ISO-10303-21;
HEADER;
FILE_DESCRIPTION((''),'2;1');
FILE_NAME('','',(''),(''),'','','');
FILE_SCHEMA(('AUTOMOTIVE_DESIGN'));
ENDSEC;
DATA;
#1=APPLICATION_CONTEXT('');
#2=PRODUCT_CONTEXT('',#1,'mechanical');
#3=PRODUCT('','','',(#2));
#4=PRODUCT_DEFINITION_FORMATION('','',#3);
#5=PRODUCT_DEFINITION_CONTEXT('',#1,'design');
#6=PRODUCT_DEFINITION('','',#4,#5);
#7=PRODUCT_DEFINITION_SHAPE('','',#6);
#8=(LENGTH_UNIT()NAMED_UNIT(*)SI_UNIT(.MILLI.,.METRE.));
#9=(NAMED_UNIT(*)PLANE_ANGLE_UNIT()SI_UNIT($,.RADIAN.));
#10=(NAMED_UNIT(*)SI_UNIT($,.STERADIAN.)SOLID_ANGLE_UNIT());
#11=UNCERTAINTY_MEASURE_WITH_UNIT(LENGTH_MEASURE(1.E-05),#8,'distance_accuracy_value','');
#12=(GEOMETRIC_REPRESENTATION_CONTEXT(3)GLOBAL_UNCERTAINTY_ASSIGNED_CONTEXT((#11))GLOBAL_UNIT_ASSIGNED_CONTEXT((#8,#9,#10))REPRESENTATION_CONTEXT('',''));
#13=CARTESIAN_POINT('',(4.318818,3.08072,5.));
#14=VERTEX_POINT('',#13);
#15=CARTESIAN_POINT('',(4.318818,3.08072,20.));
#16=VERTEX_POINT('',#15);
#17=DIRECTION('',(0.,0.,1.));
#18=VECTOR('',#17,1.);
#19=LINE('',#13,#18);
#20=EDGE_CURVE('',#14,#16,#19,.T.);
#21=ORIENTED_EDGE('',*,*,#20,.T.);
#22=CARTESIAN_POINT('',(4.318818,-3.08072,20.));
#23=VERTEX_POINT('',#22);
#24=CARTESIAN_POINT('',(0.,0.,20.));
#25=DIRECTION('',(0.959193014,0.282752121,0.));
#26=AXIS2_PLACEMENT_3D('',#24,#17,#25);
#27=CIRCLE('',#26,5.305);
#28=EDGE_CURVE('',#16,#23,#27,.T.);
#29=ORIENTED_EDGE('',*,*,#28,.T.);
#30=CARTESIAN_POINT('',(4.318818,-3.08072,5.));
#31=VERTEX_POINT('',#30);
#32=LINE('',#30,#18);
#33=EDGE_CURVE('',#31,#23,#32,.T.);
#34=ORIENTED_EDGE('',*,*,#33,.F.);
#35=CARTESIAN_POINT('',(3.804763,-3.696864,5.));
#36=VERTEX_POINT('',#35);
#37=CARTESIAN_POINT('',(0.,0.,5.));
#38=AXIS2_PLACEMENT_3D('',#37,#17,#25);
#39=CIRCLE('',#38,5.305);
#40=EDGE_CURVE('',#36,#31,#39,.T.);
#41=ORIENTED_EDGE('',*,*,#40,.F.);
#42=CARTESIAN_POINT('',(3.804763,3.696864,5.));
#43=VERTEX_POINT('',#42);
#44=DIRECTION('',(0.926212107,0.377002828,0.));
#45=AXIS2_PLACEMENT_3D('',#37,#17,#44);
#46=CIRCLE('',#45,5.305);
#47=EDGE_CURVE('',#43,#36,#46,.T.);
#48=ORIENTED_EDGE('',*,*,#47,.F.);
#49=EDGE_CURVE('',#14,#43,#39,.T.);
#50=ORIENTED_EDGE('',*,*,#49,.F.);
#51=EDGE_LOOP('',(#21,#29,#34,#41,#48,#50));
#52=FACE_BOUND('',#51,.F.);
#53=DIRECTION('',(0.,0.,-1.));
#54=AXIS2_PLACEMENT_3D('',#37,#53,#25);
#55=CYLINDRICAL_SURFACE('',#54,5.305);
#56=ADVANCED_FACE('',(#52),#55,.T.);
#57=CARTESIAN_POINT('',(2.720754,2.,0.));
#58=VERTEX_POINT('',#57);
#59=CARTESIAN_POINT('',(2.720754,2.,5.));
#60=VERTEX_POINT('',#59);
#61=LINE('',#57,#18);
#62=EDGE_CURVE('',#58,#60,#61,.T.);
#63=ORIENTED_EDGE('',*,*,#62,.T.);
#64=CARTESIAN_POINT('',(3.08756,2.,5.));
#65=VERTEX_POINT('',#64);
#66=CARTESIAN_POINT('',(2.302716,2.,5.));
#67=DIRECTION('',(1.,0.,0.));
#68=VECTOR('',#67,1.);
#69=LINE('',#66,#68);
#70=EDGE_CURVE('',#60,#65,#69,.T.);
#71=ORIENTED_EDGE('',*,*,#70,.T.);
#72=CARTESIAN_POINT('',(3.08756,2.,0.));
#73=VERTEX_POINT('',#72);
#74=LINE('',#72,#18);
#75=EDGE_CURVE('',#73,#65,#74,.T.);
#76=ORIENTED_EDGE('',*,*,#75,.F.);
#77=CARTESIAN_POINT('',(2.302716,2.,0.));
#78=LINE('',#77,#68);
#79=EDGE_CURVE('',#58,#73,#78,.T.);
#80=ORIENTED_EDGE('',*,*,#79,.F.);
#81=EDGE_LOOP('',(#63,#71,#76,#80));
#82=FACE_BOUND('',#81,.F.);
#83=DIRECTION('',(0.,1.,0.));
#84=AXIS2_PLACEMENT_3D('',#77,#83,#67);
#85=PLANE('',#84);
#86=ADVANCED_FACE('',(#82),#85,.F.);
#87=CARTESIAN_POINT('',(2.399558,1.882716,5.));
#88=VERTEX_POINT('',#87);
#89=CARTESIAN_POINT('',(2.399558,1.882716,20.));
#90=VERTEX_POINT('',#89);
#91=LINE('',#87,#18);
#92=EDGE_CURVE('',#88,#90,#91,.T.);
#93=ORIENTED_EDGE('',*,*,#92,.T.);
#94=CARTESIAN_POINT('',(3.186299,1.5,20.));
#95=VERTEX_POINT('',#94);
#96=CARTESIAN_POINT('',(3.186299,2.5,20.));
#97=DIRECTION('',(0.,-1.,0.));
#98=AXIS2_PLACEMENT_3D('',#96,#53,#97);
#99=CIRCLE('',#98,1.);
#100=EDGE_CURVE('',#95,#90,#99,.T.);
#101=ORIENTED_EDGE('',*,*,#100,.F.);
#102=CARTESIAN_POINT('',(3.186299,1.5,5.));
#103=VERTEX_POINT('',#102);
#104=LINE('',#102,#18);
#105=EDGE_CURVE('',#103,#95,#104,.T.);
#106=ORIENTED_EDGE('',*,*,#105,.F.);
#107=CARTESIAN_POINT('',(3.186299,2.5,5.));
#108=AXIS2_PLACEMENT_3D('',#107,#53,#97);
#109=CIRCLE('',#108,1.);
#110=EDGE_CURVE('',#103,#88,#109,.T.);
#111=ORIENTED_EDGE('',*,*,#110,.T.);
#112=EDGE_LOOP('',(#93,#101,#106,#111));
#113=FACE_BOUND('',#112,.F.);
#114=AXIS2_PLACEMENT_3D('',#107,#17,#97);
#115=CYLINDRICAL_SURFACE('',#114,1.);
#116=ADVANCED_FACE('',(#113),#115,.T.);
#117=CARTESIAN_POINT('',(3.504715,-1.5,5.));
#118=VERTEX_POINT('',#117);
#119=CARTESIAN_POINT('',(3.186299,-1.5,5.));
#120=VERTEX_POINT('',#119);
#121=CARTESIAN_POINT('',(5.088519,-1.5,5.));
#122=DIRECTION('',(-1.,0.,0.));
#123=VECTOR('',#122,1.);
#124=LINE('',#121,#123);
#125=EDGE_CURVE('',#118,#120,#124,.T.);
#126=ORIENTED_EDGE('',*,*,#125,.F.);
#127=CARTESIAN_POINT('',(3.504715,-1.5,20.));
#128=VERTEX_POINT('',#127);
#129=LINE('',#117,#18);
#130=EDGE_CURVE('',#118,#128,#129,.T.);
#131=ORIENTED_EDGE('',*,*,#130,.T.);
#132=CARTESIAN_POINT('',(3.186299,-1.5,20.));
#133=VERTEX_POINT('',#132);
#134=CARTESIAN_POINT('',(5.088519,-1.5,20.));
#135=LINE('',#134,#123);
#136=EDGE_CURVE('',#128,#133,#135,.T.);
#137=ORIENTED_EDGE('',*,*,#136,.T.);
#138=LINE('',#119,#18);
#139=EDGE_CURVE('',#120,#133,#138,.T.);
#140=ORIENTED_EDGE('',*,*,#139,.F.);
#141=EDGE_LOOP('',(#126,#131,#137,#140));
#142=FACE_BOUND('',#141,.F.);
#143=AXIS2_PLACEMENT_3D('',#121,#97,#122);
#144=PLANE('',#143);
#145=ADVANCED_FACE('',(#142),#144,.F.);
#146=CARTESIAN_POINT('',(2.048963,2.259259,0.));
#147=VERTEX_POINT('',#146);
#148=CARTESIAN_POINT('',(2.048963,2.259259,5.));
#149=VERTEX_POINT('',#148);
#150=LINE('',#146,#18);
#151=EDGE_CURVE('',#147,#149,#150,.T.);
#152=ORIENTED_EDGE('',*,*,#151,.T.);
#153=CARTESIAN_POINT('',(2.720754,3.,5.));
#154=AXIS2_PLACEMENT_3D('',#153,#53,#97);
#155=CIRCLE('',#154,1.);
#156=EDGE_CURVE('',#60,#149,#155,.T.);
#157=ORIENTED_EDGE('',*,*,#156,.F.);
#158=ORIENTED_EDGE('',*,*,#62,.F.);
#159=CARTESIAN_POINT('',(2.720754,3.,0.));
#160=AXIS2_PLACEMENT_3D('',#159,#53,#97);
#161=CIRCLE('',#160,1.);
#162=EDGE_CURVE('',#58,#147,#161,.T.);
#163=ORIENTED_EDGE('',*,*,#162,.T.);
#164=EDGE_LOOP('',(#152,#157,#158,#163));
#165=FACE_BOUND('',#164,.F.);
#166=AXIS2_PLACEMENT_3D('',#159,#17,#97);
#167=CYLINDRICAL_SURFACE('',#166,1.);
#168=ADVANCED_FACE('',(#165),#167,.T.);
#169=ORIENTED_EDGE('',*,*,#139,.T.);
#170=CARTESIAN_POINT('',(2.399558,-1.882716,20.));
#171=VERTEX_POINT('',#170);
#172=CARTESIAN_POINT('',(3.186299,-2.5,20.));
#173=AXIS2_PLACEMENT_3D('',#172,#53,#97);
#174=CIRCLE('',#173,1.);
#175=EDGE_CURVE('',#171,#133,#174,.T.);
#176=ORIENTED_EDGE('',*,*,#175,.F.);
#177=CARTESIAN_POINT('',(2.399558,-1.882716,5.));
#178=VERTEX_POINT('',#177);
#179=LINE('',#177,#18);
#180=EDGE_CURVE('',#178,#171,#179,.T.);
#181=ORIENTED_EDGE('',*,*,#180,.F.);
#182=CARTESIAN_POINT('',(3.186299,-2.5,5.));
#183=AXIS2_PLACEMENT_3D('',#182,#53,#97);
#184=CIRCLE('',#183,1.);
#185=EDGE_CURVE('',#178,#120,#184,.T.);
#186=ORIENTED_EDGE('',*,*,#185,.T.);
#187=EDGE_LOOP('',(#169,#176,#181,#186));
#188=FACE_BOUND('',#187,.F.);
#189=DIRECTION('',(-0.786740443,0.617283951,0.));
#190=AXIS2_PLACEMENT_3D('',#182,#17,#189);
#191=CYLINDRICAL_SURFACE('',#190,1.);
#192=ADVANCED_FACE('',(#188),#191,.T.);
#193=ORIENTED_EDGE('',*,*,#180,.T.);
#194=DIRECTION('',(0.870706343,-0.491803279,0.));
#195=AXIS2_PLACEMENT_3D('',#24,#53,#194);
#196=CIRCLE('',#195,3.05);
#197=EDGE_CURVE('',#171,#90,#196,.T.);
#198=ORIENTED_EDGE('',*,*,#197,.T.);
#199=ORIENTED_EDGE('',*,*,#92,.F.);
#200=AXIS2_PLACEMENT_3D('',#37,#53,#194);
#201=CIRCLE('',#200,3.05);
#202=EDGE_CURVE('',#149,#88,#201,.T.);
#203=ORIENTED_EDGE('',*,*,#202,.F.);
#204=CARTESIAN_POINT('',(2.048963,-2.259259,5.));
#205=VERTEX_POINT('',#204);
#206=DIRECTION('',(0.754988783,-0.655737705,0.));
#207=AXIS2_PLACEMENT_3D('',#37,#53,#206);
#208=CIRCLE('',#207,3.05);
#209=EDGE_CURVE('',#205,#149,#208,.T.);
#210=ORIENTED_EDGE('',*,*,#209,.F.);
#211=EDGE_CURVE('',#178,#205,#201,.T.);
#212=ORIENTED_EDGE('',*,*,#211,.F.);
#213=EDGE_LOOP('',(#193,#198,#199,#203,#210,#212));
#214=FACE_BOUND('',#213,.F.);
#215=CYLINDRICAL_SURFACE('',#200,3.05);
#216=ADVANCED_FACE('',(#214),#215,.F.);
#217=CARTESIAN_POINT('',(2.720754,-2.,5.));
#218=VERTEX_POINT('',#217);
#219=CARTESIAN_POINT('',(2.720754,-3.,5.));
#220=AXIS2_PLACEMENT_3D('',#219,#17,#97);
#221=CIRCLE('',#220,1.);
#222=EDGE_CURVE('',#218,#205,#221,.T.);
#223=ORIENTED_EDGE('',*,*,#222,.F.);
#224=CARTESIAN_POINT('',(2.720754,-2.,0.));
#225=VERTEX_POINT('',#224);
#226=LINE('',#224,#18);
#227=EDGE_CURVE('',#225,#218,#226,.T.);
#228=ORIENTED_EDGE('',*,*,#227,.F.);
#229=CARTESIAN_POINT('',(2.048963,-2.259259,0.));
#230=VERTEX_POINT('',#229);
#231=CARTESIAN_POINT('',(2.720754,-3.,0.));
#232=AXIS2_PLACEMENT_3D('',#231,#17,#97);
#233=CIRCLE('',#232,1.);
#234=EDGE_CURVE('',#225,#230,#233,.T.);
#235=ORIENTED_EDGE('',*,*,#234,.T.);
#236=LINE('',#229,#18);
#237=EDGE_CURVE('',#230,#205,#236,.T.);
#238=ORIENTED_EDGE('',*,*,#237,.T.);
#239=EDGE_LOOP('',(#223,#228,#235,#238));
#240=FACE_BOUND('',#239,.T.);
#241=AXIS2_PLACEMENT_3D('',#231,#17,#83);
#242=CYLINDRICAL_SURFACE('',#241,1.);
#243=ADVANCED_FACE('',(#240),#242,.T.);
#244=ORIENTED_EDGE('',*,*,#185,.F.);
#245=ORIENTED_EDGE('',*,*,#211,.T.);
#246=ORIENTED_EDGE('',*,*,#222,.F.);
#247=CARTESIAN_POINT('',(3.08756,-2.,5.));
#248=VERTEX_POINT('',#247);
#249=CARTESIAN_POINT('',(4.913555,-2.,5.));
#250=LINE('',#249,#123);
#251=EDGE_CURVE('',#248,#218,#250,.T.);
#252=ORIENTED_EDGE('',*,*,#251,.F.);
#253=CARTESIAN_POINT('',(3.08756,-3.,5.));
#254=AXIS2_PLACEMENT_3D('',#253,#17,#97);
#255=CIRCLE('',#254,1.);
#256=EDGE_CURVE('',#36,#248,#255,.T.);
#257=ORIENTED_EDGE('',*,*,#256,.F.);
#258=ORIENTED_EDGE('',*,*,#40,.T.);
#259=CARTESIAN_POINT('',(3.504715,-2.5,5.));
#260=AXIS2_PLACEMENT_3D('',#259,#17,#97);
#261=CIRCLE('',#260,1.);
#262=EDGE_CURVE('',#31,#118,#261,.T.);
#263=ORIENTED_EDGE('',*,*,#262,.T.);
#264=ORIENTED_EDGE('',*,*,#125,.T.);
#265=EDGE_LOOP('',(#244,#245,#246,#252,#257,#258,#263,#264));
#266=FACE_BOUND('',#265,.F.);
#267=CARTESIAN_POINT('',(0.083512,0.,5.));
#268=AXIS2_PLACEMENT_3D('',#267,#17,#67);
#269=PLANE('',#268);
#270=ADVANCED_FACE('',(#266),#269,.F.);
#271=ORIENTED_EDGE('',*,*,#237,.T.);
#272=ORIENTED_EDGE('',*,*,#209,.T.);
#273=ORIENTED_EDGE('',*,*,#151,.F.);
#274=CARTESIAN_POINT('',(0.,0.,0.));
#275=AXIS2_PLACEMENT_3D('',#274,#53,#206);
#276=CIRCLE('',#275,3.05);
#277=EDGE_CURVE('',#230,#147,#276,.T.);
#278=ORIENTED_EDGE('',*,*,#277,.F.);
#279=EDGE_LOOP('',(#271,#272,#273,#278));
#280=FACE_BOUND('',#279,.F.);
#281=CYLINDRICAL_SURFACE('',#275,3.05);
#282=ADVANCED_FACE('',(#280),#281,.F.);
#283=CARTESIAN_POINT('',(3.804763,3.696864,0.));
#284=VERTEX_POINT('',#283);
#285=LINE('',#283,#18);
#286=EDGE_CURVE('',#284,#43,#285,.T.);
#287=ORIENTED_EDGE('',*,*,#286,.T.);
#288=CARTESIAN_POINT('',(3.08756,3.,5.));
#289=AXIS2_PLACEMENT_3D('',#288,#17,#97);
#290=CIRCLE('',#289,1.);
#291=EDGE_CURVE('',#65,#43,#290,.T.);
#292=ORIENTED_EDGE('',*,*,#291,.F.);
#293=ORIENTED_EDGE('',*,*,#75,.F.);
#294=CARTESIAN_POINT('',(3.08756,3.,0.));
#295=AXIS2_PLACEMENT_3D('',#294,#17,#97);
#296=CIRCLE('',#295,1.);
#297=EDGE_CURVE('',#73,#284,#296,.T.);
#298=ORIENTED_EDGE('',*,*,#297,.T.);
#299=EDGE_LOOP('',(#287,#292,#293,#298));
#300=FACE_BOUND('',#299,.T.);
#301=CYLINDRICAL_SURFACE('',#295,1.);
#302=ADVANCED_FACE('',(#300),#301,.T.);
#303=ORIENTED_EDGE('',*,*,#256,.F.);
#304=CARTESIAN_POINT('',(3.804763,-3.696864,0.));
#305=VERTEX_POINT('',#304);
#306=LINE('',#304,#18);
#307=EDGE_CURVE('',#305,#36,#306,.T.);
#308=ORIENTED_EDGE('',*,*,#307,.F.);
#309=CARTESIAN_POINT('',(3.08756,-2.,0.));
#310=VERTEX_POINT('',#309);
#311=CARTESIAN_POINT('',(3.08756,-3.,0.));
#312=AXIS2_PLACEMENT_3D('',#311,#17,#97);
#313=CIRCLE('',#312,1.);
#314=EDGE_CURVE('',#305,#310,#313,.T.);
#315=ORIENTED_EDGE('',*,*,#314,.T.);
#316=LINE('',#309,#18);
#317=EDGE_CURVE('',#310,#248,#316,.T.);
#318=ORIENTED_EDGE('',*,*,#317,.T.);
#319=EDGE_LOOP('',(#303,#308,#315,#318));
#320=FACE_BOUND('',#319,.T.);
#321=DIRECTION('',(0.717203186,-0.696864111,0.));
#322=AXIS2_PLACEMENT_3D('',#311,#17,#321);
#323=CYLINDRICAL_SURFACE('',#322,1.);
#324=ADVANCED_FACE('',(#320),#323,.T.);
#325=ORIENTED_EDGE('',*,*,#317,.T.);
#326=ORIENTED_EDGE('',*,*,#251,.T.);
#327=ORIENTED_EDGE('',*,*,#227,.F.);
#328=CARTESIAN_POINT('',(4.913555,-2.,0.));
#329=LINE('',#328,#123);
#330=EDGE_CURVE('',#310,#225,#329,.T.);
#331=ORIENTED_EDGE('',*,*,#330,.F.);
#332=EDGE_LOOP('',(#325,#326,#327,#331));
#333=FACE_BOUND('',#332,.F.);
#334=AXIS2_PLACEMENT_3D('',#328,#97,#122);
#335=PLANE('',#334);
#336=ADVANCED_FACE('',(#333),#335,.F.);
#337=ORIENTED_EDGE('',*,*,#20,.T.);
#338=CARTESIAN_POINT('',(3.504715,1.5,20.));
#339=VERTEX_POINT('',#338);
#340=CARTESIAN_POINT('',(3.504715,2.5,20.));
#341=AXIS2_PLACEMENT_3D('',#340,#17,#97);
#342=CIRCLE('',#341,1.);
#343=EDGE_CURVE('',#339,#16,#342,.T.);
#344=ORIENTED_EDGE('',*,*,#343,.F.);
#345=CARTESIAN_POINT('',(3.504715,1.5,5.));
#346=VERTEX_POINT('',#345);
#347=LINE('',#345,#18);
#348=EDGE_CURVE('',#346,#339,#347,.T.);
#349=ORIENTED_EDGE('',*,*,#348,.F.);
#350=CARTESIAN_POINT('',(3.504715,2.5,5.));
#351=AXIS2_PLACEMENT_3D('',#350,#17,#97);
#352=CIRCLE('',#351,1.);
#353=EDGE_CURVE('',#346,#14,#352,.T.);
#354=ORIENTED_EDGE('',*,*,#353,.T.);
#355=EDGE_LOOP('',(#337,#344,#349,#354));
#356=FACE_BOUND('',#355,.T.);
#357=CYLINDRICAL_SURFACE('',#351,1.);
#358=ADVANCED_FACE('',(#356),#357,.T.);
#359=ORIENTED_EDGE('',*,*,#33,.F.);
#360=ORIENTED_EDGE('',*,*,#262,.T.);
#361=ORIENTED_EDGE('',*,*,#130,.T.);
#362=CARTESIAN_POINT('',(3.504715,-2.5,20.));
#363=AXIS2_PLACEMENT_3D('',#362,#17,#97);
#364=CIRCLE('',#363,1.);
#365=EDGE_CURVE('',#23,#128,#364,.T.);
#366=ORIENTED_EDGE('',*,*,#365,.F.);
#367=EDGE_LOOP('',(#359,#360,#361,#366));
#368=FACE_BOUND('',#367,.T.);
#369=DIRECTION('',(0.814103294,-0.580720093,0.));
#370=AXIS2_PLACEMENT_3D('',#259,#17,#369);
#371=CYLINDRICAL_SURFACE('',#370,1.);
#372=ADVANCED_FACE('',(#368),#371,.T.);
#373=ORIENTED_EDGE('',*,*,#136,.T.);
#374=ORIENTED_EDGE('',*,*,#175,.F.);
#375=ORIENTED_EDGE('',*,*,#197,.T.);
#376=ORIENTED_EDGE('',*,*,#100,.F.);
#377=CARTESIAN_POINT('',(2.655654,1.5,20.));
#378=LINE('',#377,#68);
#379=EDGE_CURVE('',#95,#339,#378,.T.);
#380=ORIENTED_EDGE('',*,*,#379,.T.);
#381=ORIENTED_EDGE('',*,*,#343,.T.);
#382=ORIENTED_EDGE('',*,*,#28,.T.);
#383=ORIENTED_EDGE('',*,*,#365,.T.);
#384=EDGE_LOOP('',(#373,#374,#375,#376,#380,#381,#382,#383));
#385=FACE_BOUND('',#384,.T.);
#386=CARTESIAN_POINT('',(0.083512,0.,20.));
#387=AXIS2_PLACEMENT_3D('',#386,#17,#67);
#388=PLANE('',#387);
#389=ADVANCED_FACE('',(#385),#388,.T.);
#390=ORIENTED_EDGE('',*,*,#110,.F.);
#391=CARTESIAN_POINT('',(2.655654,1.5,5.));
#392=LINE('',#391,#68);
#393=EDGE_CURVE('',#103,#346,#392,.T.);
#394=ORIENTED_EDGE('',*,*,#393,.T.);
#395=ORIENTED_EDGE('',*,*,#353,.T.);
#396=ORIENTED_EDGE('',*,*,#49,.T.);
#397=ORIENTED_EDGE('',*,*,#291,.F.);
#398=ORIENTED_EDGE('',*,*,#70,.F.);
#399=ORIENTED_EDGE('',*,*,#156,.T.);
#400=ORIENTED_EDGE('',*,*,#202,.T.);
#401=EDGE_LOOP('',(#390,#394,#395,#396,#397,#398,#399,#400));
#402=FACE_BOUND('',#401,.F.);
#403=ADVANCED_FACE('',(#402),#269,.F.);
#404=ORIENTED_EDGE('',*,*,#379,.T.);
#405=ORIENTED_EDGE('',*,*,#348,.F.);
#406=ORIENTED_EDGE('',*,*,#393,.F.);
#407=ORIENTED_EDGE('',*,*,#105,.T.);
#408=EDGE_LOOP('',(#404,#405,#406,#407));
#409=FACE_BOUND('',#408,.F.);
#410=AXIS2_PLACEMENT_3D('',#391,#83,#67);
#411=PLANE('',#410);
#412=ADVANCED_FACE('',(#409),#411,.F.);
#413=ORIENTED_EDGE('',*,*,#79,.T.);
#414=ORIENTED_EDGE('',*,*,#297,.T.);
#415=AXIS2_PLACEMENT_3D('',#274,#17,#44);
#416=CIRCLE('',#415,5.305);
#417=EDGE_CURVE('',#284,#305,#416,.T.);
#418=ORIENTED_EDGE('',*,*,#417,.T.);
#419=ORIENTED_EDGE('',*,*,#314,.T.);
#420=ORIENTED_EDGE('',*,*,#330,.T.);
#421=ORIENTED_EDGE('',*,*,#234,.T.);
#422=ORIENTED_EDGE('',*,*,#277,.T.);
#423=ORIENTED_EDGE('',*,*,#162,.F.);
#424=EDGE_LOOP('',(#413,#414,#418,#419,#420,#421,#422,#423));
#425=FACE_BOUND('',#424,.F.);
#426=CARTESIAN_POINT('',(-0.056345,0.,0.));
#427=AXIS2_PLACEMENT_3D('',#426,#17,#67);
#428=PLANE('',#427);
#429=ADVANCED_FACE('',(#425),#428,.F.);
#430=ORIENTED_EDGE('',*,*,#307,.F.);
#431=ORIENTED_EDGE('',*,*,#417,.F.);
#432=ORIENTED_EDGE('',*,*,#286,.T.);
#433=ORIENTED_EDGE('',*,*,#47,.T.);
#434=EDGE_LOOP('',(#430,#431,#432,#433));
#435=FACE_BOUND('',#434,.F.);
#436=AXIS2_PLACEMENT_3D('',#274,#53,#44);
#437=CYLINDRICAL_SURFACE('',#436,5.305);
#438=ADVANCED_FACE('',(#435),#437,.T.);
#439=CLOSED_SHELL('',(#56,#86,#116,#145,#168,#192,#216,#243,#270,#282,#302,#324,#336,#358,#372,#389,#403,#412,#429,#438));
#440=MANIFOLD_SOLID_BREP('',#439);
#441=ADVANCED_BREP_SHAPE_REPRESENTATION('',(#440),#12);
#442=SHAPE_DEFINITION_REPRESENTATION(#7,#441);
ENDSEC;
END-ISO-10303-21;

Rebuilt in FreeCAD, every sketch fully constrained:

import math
import FreeCAD as App
import Part
import Sketcher


def edges_at(feature, points):
    """Names of the edges that pass closest to the given points."""
    edges = feature.Shape.Edges
    near = lambda p: min(range(len(edges)), key=lambda i: edges[i].distToShape(Part.Vertex(*p))[0])
    return sorted({f"Edge{near(p) + 1}" for p in points})

doc = App.newDocument("Part")
body = doc.addObject("PartDesign::Body", "Body")

sketch1 = body.newObject("Sketcher::SketchObject", "Sketch")
sketch1.AttachmentSupport = (doc.getObject("XY_Plane"), [""])
sketch1.MapMode = "FlatFace"
sketch1.addGeometry(Part.LineSegment(App.Vector(2.302716, 2, 0), App.Vector(4.913555, 2, 0)), False)
sketch1.addGeometry(Part.ArcOfCircle(Part.Circle(App.Vector(0, 0, 0), App.Vector(0, 0, 1), 5.305), math.radians(22.148154), math.radians(337.851846)), False)
sketch1.addGeometry(Part.LineSegment(App.Vector(4.913555, -2, 0), App.Vector(2.302716, -2, 0)), False)
sketch1.addGeometry(Part.ArcOfCircle(Part.Circle(App.Vector(0, 0, 0), App.Vector(0, 0, 1), 3.05), math.radians(40.97561), math.radians(319.02439)), False)
sketch1.addConstraint(Sketcher.Constraint("Coincident", 0, 2, 1, 1))
sketch1.addConstraint(Sketcher.Constraint("Coincident", 1, 2, 2, 1))
sketch1.addConstraint(Sketcher.Constraint("Coincident", 2, 2, 3, 2))
sketch1.addConstraint(Sketcher.Constraint("Coincident", 3, 1, 0, 1))
sketch1.addConstraint(Sketcher.Constraint("Horizontal", 0))
sketch1.addConstraint(Sketcher.Constraint("Horizontal", 2))
sketch1.addConstraint(Sketcher.Constraint("Coincident", 1, 3, -1, 1))
sketch1.addConstraint(Sketcher.Constraint("Coincident", 3, 3, -1, 1))
sketch1.addConstraint(Sketcher.Constraint("Vertical", 0, 2, 1, 2))
sketch1.addConstraint(Sketcher.Constraint("Radius", 3, 3.05))
sketch1.addConstraint(Sketcher.Constraint("DistanceY", -1, 1, 0, 2, 2.0))
sketch1.addConstraint(Sketcher.Constraint("Radius", 1, 5.305))
pad1 = body.newObject("PartDesign::Pad", "Pad")
pad1.Profile = sketch1
pad1.Length = 5
doc.recompute()

fillet = body.newObject("PartDesign::Fillet", "Fillet")
fillet.Base = (pad1, edges_at(pad1, [
    (4.914, 2, 2.5),
    (2.303, 2, 2.5),
    (2.303, -2, 2.5),
    (4.914, -2, 2.5),
]))
fillet.Radius = 1

sketch2 = body.newObject("Sketcher::SketchObject", "Sketch001")
sketch2.AttachmentSupport = (doc.getObject("XY_Plane"), [""])
sketch2.MapMode = "FlatFace"
sketch2.AttachmentOffset = App.Placement(App.Vector(0, 0, 5), App.Rotation())
sketch2.addGeometry(Part.LineSegment(App.Vector(2.655654, 1.5, 0), App.Vector(5.088519, 1.5, 0)), False)
sketch2.addGeometry(Part.ArcOfCircle(Part.Circle(App.Vector(0, 0, 0), App.Vector(0, 0, 1), 5.305), math.radians(16.424529), math.radians(343.575471)), False)
sketch2.addGeometry(Part.LineSegment(App.Vector(5.088519, -1.5, 0), App.Vector(2.655654, -1.5, 0)), False)
sketch2.addGeometry(Part.ArcOfCircle(Part.Circle(App.Vector(0, 0, 0), App.Vector(0, 0, 1), 3.05), math.radians(29.459175), math.radians(330.540825)), False)
sketch2.addConstraint(Sketcher.Constraint("Coincident", 0, 2, 1, 1))
sketch2.addConstraint(Sketcher.Constraint("Coincident", 1, 2, 2, 1))
sketch2.addConstraint(Sketcher.Constraint("Coincident", 2, 2, 3, 2))
sketch2.addConstraint(Sketcher.Constraint("Coincident", 3, 1, 0, 1))
sketch2.addConstraint(Sketcher.Constraint("Horizontal", 0))
sketch2.addConstraint(Sketcher.Constraint("Horizontal", 2))
sketch2.addConstraint(Sketcher.Constraint("Coincident", 1, 3, -1, 1))
sketch2.addConstraint(Sketcher.Constraint("Coincident", 3, 3, -1, 1))
sketch2.addConstraint(Sketcher.Constraint("Vertical", 0, 2, 1, 2))
sketch2.addConstraint(Sketcher.Constraint("Radius", 3, 3.05))
sketch2.addConstraint(Sketcher.Constraint("Radius", 1, 5.305))
sketch2.addConstraint(Sketcher.Constraint("DistanceY", 1, 2, 0, 2, 3.0))
pad2 = body.newObject("PartDesign::Pad", "Pad001")
pad2.Profile = sketch2
pad2.Length = 15
doc.recompute()

fillet2 = body.newObject("PartDesign::Fillet", "Fillet001")
fillet2.Base = (pad2, edges_at(pad2, [
    (5.089, -1.5, 12.5),
    (5.089, 1.5, 12.5),
    (2.656, -1.5, 12.5),
    (2.656, 1.5, 12.5),
]))
fillet2.Radius = 1

doc.recompute()
